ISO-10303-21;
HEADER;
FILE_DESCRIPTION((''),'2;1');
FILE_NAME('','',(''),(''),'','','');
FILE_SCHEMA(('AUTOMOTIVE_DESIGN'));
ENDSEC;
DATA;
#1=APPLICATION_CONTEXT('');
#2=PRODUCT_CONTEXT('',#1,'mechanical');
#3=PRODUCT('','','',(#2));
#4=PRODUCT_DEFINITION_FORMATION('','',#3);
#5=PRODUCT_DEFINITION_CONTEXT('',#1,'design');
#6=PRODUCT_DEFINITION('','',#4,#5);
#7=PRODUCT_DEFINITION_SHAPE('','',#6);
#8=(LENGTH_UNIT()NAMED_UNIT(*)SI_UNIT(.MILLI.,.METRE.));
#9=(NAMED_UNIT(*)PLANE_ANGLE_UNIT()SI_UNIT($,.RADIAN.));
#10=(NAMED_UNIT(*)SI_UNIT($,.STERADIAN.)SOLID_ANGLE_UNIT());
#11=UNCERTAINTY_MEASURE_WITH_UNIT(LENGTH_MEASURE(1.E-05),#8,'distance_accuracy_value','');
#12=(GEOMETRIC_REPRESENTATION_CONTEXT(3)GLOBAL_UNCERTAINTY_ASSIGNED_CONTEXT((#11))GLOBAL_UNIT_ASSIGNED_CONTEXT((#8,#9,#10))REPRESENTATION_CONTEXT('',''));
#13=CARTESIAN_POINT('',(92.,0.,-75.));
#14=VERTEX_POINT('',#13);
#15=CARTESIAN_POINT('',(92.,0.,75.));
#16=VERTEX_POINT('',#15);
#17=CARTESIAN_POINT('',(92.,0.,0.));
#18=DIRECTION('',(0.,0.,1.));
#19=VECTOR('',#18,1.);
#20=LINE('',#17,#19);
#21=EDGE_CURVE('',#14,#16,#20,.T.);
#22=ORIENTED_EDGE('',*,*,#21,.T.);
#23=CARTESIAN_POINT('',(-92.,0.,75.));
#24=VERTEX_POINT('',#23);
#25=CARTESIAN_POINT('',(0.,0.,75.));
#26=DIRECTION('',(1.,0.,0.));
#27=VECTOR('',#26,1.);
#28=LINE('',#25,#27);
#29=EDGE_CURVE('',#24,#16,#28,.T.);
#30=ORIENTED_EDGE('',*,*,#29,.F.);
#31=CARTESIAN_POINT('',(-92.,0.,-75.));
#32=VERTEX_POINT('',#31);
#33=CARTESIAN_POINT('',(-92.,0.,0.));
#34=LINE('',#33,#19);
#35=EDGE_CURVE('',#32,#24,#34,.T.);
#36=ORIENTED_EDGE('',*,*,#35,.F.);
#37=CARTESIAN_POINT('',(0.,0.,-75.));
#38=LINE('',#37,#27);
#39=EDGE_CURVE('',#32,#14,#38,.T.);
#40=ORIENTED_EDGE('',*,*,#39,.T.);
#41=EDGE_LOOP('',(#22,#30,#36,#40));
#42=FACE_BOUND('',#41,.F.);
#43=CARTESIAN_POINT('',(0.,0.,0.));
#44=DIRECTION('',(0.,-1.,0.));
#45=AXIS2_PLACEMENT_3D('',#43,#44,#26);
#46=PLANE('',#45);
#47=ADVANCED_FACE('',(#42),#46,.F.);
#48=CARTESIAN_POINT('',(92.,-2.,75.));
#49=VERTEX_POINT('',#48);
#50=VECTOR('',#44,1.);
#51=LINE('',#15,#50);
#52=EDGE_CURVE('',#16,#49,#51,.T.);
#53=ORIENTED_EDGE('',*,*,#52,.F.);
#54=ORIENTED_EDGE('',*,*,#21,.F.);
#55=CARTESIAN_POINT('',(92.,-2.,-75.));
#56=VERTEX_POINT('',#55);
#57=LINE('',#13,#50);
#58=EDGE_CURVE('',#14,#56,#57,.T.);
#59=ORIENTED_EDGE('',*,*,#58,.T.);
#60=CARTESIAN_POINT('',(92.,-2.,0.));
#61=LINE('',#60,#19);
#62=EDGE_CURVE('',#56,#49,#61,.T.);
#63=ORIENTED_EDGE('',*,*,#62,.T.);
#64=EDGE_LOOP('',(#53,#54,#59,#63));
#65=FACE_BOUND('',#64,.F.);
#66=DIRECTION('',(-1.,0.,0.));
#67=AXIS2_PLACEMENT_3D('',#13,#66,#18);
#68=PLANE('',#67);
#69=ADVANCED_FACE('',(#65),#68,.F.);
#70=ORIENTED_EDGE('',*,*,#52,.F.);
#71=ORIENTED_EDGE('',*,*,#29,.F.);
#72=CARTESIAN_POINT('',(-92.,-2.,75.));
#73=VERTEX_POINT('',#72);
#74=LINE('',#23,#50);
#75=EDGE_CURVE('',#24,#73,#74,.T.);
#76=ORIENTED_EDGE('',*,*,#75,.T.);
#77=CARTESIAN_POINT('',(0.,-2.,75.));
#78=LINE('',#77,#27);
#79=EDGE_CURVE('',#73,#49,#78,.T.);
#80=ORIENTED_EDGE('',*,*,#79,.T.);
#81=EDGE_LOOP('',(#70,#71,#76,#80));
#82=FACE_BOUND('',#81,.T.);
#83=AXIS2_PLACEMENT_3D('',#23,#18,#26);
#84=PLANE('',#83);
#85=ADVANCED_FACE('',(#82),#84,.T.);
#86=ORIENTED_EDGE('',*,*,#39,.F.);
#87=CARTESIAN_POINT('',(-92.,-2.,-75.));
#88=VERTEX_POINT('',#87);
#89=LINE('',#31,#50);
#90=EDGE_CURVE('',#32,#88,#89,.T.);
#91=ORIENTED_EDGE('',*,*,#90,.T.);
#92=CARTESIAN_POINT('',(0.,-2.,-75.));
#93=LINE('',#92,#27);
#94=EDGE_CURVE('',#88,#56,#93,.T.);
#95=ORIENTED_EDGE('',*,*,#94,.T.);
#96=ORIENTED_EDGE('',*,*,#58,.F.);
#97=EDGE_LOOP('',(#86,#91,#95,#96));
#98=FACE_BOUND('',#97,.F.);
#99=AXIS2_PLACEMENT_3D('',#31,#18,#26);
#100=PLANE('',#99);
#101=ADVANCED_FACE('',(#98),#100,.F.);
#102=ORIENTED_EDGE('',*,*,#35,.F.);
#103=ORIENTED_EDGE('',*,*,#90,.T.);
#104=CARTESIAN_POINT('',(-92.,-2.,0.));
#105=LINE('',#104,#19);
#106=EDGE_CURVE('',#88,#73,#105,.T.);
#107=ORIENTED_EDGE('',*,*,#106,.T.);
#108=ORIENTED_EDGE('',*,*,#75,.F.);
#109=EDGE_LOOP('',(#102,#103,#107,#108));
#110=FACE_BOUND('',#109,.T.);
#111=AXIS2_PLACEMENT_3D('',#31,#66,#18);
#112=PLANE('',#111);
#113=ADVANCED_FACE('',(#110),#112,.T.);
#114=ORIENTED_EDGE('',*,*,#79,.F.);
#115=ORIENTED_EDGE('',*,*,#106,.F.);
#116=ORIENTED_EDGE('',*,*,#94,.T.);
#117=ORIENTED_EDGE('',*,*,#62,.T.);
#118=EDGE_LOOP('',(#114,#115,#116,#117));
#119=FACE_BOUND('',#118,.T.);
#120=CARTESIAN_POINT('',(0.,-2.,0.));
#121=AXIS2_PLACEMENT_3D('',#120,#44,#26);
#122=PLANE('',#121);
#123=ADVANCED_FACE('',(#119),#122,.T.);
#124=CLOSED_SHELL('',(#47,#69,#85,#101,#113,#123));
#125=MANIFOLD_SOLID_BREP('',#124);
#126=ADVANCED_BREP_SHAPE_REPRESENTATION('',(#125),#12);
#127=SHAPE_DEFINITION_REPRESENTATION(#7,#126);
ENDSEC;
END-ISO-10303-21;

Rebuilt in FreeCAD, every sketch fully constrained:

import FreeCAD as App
import Part
import Sketcher

V = App.Vector
Q = App.Units.Quantity


def add_polygon(sketch, points):
    """Adds a closed chain of lines whose ends are joined by coincident constraints."""
    first, n = sketch.GeometryCount, len(points)
    for a, b in zip(points, points[1:] + points[:1]):
        sketch.addGeometry(Part.LineSegment(App.Vector(*a, 0), App.Vector(*b, 0)), False)
    for i in range(n):
        sketch.addConstraint(Sketcher.Constraint("Coincident", first + i, 2, first + (i + 1) % n, 1))

doc = App.newDocument("Part")
body = doc.addObject("PartDesign::Body", "Body")

sketch1 = body.newObject("Sketcher::SketchObject", "Sketch")
sketch1.AttachmentSupport = (doc.getObject("XZ_Plane"), [""])
sketch1.MapMode = "FlatFace"
add_polygon(sketch1, [(-92, 75), (-92, -75), (92, -75), (92, 75)])
sketch1.addConstraint(Sketcher.Constraint("Vertical", 0))
sketch1.addConstraint(Sketcher.Constraint("Horizontal", 1))
sketch1.addConstraint(Sketcher.Constraint("Vertical", 2))
sketch1.addConstraint(Sketcher.Constraint("Horizontal", 3))
sketch1.addConstraint(Sketcher.Constraint("Symmetric", 0, 2, 2, 2, -1, 1))
sketch1.addConstraint(Sketcher.Constraint("DistanceX", 1, 1, 1, 2, Q("184 mm")))
sketch1.addConstraint(Sketcher.Constraint("DistanceY", 0, 2, 0, 1, Q("150 mm")))
pad1 = body.newObject("PartDesign::Pad", "Pad")
pad1.Profile = sketch1
pad1.Length = 2

doc.recompute()
